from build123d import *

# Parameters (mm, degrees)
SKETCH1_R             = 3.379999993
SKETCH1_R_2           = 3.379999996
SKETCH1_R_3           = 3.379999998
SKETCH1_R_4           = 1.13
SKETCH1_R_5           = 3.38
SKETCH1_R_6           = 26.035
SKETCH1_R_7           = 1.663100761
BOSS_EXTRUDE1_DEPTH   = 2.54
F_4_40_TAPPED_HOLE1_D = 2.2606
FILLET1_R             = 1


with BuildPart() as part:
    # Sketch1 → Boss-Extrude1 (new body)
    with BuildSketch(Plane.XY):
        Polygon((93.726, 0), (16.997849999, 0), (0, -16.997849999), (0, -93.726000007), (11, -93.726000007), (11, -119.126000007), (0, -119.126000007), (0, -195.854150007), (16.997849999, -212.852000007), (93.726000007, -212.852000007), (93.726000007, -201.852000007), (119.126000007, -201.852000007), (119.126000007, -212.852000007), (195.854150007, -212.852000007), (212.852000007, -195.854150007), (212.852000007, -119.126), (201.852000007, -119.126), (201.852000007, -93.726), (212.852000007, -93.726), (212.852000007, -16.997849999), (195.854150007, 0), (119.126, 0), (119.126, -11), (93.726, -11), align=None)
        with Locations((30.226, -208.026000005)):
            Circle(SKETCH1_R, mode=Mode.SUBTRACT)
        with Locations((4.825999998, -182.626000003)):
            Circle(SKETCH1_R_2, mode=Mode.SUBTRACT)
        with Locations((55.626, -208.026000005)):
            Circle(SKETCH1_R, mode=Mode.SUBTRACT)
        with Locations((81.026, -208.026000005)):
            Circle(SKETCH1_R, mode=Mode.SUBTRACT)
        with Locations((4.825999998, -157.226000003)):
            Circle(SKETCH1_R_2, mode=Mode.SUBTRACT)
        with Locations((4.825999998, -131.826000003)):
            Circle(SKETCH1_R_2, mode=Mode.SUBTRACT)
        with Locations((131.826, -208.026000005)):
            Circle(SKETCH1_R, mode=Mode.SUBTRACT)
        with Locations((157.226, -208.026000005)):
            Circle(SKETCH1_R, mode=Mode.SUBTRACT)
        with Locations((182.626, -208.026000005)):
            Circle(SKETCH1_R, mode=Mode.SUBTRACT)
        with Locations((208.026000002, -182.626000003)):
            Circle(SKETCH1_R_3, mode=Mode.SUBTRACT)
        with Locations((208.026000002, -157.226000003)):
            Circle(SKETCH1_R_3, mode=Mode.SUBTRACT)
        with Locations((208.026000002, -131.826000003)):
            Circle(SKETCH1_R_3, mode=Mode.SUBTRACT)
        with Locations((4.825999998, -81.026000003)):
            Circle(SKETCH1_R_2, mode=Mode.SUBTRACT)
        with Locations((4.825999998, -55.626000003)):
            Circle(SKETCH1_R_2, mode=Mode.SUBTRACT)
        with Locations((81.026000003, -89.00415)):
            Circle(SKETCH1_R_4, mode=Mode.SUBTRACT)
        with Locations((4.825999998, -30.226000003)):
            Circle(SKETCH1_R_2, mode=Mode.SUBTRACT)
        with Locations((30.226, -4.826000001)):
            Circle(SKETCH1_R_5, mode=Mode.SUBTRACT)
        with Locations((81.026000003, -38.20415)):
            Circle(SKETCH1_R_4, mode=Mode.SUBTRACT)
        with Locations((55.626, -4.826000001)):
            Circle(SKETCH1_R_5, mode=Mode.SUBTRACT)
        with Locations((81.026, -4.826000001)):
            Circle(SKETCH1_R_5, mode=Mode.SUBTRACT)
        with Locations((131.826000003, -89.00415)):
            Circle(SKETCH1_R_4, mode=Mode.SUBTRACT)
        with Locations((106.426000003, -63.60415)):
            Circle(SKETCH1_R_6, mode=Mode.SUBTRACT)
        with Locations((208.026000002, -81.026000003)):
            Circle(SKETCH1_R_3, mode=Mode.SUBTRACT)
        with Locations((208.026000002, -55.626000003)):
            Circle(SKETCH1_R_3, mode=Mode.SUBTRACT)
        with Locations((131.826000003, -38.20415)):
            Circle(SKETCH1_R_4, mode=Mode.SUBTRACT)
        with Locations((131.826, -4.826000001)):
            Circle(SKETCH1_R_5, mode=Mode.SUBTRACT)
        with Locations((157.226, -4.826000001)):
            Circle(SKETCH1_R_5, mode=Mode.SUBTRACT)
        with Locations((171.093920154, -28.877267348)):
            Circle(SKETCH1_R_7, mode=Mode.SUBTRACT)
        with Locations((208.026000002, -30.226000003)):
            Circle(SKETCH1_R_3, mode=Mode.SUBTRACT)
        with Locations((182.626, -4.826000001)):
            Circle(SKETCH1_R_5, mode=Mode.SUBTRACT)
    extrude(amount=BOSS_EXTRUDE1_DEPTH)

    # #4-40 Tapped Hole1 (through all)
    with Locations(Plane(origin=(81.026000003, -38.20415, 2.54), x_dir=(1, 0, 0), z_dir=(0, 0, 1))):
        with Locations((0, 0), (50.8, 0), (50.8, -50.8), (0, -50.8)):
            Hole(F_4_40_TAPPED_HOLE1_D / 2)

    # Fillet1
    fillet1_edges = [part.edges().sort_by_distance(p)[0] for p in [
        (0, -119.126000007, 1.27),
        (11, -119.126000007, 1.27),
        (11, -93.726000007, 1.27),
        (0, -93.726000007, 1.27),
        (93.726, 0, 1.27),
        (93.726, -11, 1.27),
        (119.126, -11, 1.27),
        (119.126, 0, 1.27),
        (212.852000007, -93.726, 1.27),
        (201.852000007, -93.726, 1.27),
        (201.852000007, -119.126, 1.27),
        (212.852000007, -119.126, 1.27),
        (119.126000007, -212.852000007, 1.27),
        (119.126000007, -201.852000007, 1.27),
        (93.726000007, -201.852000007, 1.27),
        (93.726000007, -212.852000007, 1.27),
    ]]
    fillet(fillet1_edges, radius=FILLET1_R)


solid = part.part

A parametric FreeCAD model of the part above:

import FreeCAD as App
import Part
import Sketcher

V = App.Vector
Q = App.Units.Quantity


def edges_at(feature, points):
    """Names of the edges that pass closest to the given points."""
    edges = feature.Shape.Edges
    near = lambda p: min(range(len(edges)), key=lambda i: edges[i].distToShape(Part.Vertex(*p))[0])
    return sorted({f"Edge{near(p) + 1}" for p in points})

doc = App.newDocument("Part")
params = doc.addObject("Spreadsheet::Sheet", "Params")
for row, (alias, value) in enumerate([
    ("sketch1_diameter", "2.05 in"),
    ("sketch1_width", "1 in"),
    ("pad1_length", "0.1 in"),
    ("sketch2_diameter", "0.089 in"),
    ("hole_diameter", "0.089 in"),
    ("fillet_radius", "1 mm"),
], start=1):
    params.set(f"A{row}", alias)
    params.set(f"B{row}", "=" + value)
    params.setAlias(f"B{row}", alias)

body = doc.addObject("PartDesign::Body", "Body")

# Sketch on XY plane
sketch1 = doc.addObject("Sketcher::SketchObject", "Sketch")
body.addObject(sketch1)
sketch1.AttachmentSupport = (doc.XY_Plane, [""])
sketch1.MapMode = "FlatFace"
sketch1.addGeometry([
    Part.LineSegment(V(93.726, 0, 0), V(16.99785, 0, 0)),  # 0
    Part.LineSegment(V(16.99785, 0, 0), V(0, -16.99785, 0)),  # 1
    Part.LineSegment(V(0, -16.99785, 0), V(0, -93.726, 0)),  # 2
    Part.LineSegment(V(0, -93.726, 0), V(11, -93.726, 0)),  # 3
    Part.LineSegment(V(11, -93.726, 0), V(11, -119.126, 0)),  # 4
    Part.LineSegment(V(11, -119.126, 0), V(0, -119.126, 0)),  # 5
    Part.LineSegment(V(0, -119.126, 0), V(0, -195.85415, 0)),  # 6
    Part.LineSegment(V(0, -195.85415, 0), V(16.99785, -212.852, 0)),  # 7
    Part.LineSegment(V(16.99785, -212.852, 0), V(93.726, -212.852, 0)),  # 8
    Part.LineSegment(V(93.726, -212.852, 0), V(93.726, -201.852, 0)),  # 9
    Part.LineSegment(V(93.726, -201.852, 0), V(119.126, -201.852, 0)),  # 10
    Part.LineSegment(V(119.126, -201.852, 0), V(119.126, -212.852, 0)),  # 11
    Part.LineSegment(V(119.126, -212.852, 0), V(195.85415, -212.852, 0)),  # 12
    Part.LineSegment(V(195.85415, -212.852, 0), V(212.852, -195.85415, 0)),  # 13
    Part.LineSegment(V(212.852, -195.85415, 0), V(212.852, -119.126, 0)),  # 14
    Part.LineSegment(V(212.852, -119.126, 0), V(201.852, -119.126, 0)),  # 15
    Part.LineSegment(V(201.852, -119.126, 0), V(201.852, -93.726, 0)),  # 16
    Part.LineSegment(V(201.852, -93.726, 0), V(212.852, -93.726, 0)),  # 17
    Part.LineSegment(V(212.852, -93.726, 0), V(212.852, -16.99785, 0)),  # 18
    Part.LineSegment(V(212.852, -16.99785, 0), V(195.85415, 0, 0)),  # 19
    Part.LineSegment(V(195.85415, 0, 0), V(119.126, 0, 0)),  # 20
    Part.LineSegment(V(119.126, 0, 0), V(119.126, -11, 0)),  # 21
    Part.LineSegment(V(119.126, -11, 0), V(93.726, -11, 0)),  # 22
    Part.LineSegment(V(93.726, -11, 0), V(93.726, 0, 0)),  # 23
    Part.Circle(V(30.226, -208.026, 0), V(0, 0, 1), 3.38),  # 24
    Part.Circle(V(4.826, -182.626, 0), V(0, 0, 1), 3.38),  # 25
    Part.Circle(V(55.626, -208.026, 0), V(0, 0, 1), 3.38),  # 26
    Part.Circle(V(81.026, -208.026, 0), V(0, 0, 1), 3.38),  # 27
    Part.Circle(V(4.826, -157.226, 0), V(0, 0, 1), 3.38),  # 28
    Part.Circle(V(4.826, -131.826, 0), V(0, 0, 1), 3.38),  # 29
    Part.Circle(V(131.826, -208.026, 0), V(0, 0, 1), 3.38),  # 30
    Part.Circle(V(157.226, -208.026, 0), V(0, 0, 1), 3.38),  # 31
    Part.Circle(V(182.626, -208.026, 0), V(0, 0, 1), 3.38),  # 32
    Part.Circle(V(208.026, -182.626, 0), V(0, 0, 1), 3.38),  # 33
    Part.Circle(V(208.026, -157.226, 0), V(0, 0, 1), 3.38),  # 34
    Part.Circle(V(208.026, -131.826, 0), V(0, 0, 1), 3.38),  # 35
    Part.Circle(V(4.826, -81.026, 0), V(0, 0, 1), 3.38),  # 36
    Part.Circle(V(4.826, -55.626, 0), V(0, 0, 1), 3.38),  # 37
    Part.Circle(V(81.026, -89.00415, 0), V(0, 0, 1), 1.13),  # 38
    Part.Circle(V(4.826, -30.226, 0), V(0, 0, 1), 3.38),  # 39
    Part.Circle(V(30.226, -4.826, 0), V(0, 0, 1), 3.38),  # 40
    Part.Circle(V(81.026, -38.20415, 0), V(0, 0, 1), 1.13),  # 41
    Part.Circle(V(55.626, -4.826, 0), V(0, 0, 1), 3.38),  # 42
    Part.Circle(V(81.026, -4.826, 0), V(0, 0, 1), 3.38),  # 43
    Part.Circle(V(131.826, -89.00415, 0), V(0, 0, 1), 1.13),  # 44
    Part.Circle(V(106.426, -63.60415, 0), V(0, 0, 1), 26.035),  # 45
    Part.Circle(V(208.026, -81.026, 0), V(0, 0, 1), 3.38),  # 46
    Part.Circle(V(208.026, -55.626, 0), V(0, 0, 1), 3.38),  # 47
    Part.Circle(V(131.826, -38.20415, 0), V(0, 0, 1), 1.13),  # 48
    Part.Circle(V(131.826, -4.826, 0), V(0, 0, 1), 3.38),  # 49
    Part.Circle(V(157.226, -4.826, 0), V(0, 0, 1), 3.38),  # 50
    Part.Circle(V(171.09392, -28.877267, 0), V(0, 0, 1), 1.663101),  # 51
    Part.Circle(V(208.026, -30.226, 0), V(0, 0, 1), 3.38),  # 52
    Part.Circle(V(182.626, -4.826, 0), V(0, 0, 1), 3.38),  # 53
], False)
sketch1.addConstraint([
    Sketcher.Constraint("Coincident", 0, 2, 1, 1),
    Sketcher.Constraint("Coincident", 1, 2, 2, 1),
    Sketcher.Constraint("Coincident", 2, 2, 3, 1),
    Sketcher.Constraint("Coincident", 3, 2, 4, 1),
    Sketcher.Constraint("Coincident", 4, 2, 5, 1),
    Sketcher.Constraint("Coincident", 5, 2, 6, 1),
    Sketcher.Constraint("Coincident", 6, 2, 7, 1),
    Sketcher.Constraint("Coincident", 7, 2, 8, 1),
    Sketcher.Constraint("Coincident", 8, 2, 9, 1),
    Sketcher.Constraint("Coincident", 9, 2, 10, 1),
    Sketcher.Constraint("Coincident", 10, 2, 11, 1),
    Sketcher.Constraint("Coincident", 11, 2, 12, 1),
    Sketcher.Constraint("Coincident", 12, 2, 13, 1),
    Sketcher.Constraint("Coincident", 13, 2, 14, 1),
    Sketcher.Constraint("Coincident", 14, 2, 15, 1),
    Sketcher.Constraint("Coincident", 15, 2, 16, 1),
    Sketcher.Constraint("Coincident", 16, 2, 17, 1),
    Sketcher.Constraint("Coincident", 17, 2, 18, 1),
    Sketcher.Constraint("Coincident", 18, 2, 19, 1),
    Sketcher.Constraint("Coincident", 19, 2, 20, 1),
    Sketcher.Constraint("Coincident", 20, 2, 21, 1),
    Sketcher.Constraint("Coincident", 21, 2, 22, 1),
    Sketcher.Constraint("Coincident", 22, 2, 23, 1),
    Sketcher.Constraint("Coincident", 23, 2, 0, 1),
    Sketcher.Constraint("Horizontal", 0),
    Sketcher.Constraint("Vertical", 2),
    Sketcher.Constraint("Horizontal", 3),
    Sketcher.Constraint("Vertical", 4),
    Sketcher.Constraint("Horizontal", 5),
    Sketcher.Constraint("Vertical", 6),
    Sketcher.Constraint("Horizontal", 8),
    Sketcher.Constraint("Vertical", 9),
    Sketcher.Constraint("Horizontal", 10),
    Sketcher.Constraint("Vertical", 11),
    Sketcher.Constraint("Horizontal", 12),
    Sketcher.Constraint("Vertical", 14),
    Sketcher.Constraint("Horizontal", 15),
    Sketcher.Constraint("Vertical", 16),
    Sketcher.Constraint("Horizontal", 17),
    Sketcher.Constraint("Vertical", 18),
    Sketcher.Constraint("Horizontal", 20),
    Sketcher.Constraint("Vertical", 21),
    Sketcher.Constraint("Horizontal", 22),
    Sketcher.Constraint("Vertical", 23),
    Sketcher.Constraint("Equal", 24, 25),
    Sketcher.Constraint("Equal", 25, 26),
    Sketcher.Constraint("Equal", 26, 27),
    Sketcher.Constraint("Equal", 27, 28),
    Sketcher.Constraint("Equal", 28, 29),
    Sketcher.Constraint("Equal", 29, 30),
    Sketcher.Constraint("Equal", 30, 31),
    Sketcher.Constraint("Equal", 31, 32),
    Sketcher.Constraint("Equal", 32, 33),
    Sketcher.Constraint("Equal", 33, 34),
    Sketcher.Constraint("Equal", 34, 35),
    Sketcher.Constraint("Equal", 35, 36),
    Sketcher.Constraint("Equal", 36, 37),
    Sketcher.Constraint("Equal", 37, 39),
    Sketcher.Constraint("Equal", 39, 40),
    Sketcher.Constraint("Equal", 38, 41),
    Sketcher.Constraint("Equal", 40, 42),
    Sketcher.Constraint("Equal", 42, 43),
    Sketcher.Constraint("Equal", 41, 44),
    Sketcher.Constraint("Equal", 43, 46),
    Sketcher.Constraint("Equal", 46, 47),
    Sketcher.Constraint("Equal", 44, 48),
    Sketcher.Constraint("Equal", 47, 49),
    Sketcher.Constraint("Equal", 49, 50),
    Sketcher.Constraint("Equal", 50, 52),
    Sketcher.Constraint("Equal", 52, 53),
    Sketcher.Constraint("PointOnObject", 0, 2, -1),
    Sketcher.Constraint("PointOnObject", 1, 2, -2),
    Sketcher.Constraint("PointOnObject", 5, 2, -2),
    Sketcher.Constraint("PointOnObject", 19, 2, -1),
    Sketcher.Constraint("Perpendicular", 1, 7),
    Sketcher.Constraint("Perpendicular", 7, 13),
    Sketcher.Constraint("Perpendicular", 13, 19),
    Sketcher.Constraint("Horizontal", 24, 3, 26, 3),
    Sketcher.Constraint("Horizontal", 26, 3, 27, 3),
    Sketcher.Constraint("Horizontal", 27, 3, 30, 3),
    Sketcher.Constraint("Horizontal", 30, 3, 31, 3),
    Sketcher.Constraint("Horizontal", 31, 3, 32, 3),
    Sketcher.Constraint("Horizontal", 25, 3, 33, 3),
    Sketcher.Constraint("Horizontal", 28, 3, 34, 3),
    Sketcher.Constraint("Horizontal", 29, 3, 35, 3),
    Sketcher.Constraint("Horizontal", 40, 3, 42, 3),
    Sketcher.Constraint("Horizontal", 42, 3, 43, 3),
    Sketcher.Constraint("Horizontal", 38, 3, 44, 3),
    Sketcher.Constraint("Horizontal", 36, 3, 46, 3),
    Sketcher.Constraint("Horizontal", 37, 3, 47, 3),
    Sketcher.Constraint("Horizontal", 41, 3, 48, 3),
    Sketcher.Constraint("Horizontal", 43, 3, 49, 3),
    Sketcher.Constraint("Horizontal", 49, 3, 50, 3),
    Sketcher.Constraint("Horizontal", 39, 3, 52, 3),
    Sketcher.Constraint("Horizontal", 50, 3, 53, 3),
    Sketcher.Constraint("Horizontal", 8, 2, 11, 2),
    Sketcher.Constraint("Horizontal", 6, 2, 13, 2),
    Sketcher.Constraint("Horizontal", 5, 2, 14, 2),
    Sketcher.Constraint("Horizontal", 3, 2, 16, 2),
    Sketcher.Constraint("Horizontal", 1, 2, 18, 2),
    Sketcher.Constraint("Vertical", 25, 3, 28, 3),
    Sketcher.Constraint("Vertical", 28, 3, 29, 3),
    Sketcher.Constraint("Vertical", 33, 3, 34, 3),
    Sketcher.Constraint("Vertical", 34, 3, 35, 3),
    Sketcher.Constraint("Vertical", 29, 3, 36, 3),
    Sketcher.Constraint("Vertical", 36, 3, 37, 3),
    Sketcher.Constraint("Vertical", 27, 3, 38, 3),
    Sketcher.Constraint("Vertical", 37, 3, 39, 3),
    Sketcher.Constraint("Vertical", 24, 3, 40, 3),
    Sketcher.Constraint("Vertical", 38, 3, 41, 3),
    Sketcher.Constraint("Vertical", 26, 3, 42, 3),
    Sketcher.Constraint("Vertical", 41, 3, 43, 3),
    Sketcher.Constraint("Vertical", 30, 3, 44, 3),
    Sketcher.Constraint("Vertical", 35, 3, 46, 3),
    Sketcher.Constraint("Vertical", 46, 3, 47, 3),
    Sketcher.Constraint("Vertical", 44, 3, 48, 3),
    Sketcher.Constraint("Vertical", 48, 3, 49, 3),
    Sketcher.Constraint("Vertical", 31, 3, 50, 3),
    Sketcher.Constraint("Vertical", 47, 3, 52, 3),
    Sketcher.Constraint("Vertical", 32, 3, 53, 3),
    Sketcher.Constraint("Vertical", 0, 2, 7, 2),
    Sketcher.Constraint("Vertical", 14, 2, 17, 2),
    Sketcher.Constraint("Vertical", 12, 2, 19, 2),
    Sketcher.Constraint("Vertical", 11, 2, 20, 2),
    Sketcher.Constraint("Vertical", 9, 2, 22, 2),
    Sketcher.Constraint("Equal", 8, 12),
    Sketcher.Constraint("Equal", 5, 15),
    Sketcher.Constraint("Equal", 20, 2),
    Sketcher.Constraint("Equal", 22, 4),
    Sketcher.Constraint("Equal", 2, 6),
    Sketcher.Constraint("Equal", 17, 9),
    Sketcher.Constraint("Equal", 11, 21),
    Sketcher.Constraint("Diameter", 45, Q("2.05 in")),
    Sketcher.Constraint("DistanceX", 10, 1, 10, 2, Q("1 in")),
    Sketcher.Constraint("DistanceX", 25, 3, 24, 3, Q("1 in")),
    Sketcher.Constraint("DistanceY", 24, 3, 25, 3, Q("1 in")),
    Sketcher.Constraint("DistanceX", 24, 3, 26, 3, Q("1 in")),
    Sketcher.Constraint("DistanceX", 26, 3, 27, 3, Q("1 in")),
    Sketcher.Constraint("DistanceY", 25, 3, 28, 3, Q("1 in")),
    Sketcher.Constraint("DistanceY", 28, 3, 29, 3, Q("1 in")),
    Sketcher.Constraint("DistanceX", 27, 3, 30, 3, Q("2 in")),
    Sketcher.Constraint("DistanceX", 30, 3, 31, 3, Q("1 in")),
    Sketcher.Constraint("DistanceX", 31, 3, 32, 3, Q("1 in")),
    Sketcher.Constraint("DistanceX", 32, 3, 33, 3, Q("1 in")),
    Sketcher.Constraint("DistanceY", 29, 3, 36, 3, Q("2 in")),
    Sketcher.Constraint("DistanceY", 36, 3, 37, 3, Q("1 in")),
    Sketcher.Constraint("DistanceY", 37, 3, 39, 3, Q("1 in")),
    Sketcher.Constraint("DistanceY", 39, 3, 40, 3, Q("1 in")),
    Sketcher.Constraint("DistanceY", 38, 3, 41, 3, Q("2 in")),
    Sketcher.Constraint("DistanceX", 45, 3, 44, 3, Q("1 in")),
    Sketcher.Constraint("DistanceY", 44, 3, 45, 3, Q("1 in")),
    Sketcher.Constraint("DistanceY", 2, 2, 36, 3, Q("0.5 in")),
    Sketcher.Constraint("DistanceX", 27, 3, 8, 2, Q("0.5 in")),
    Sketcher.Constraint("Diameter", 24, Q("6.76 mm")),
    Sketcher.Constraint("Diameter", 38, Q("2.26 mm")),
    Sketcher.Constraint("Diameter", 51, Q("3.326202 mm")),
    Sketcher.Constraint("DistanceX", -1, 1, 24, 3, Q("1.19 in")),
    Sketcher.Constraint("DistanceX", 3, 1, 3, 2, Q("11 mm")),
    Sketcher.Constraint("DistanceY", 48, 3, 51, 3, Q("0.3672001 in")),
    Sketcher.Constraint("DistanceX", 0, 2, 0, 1, Q("76.72815 mm")),
    Sketcher.Constraint("DistanceY", 38, 3, -1, 1, Q("89.00415 mm")),
    Sketcher.Constraint("DistanceX", -1, 1, 51, 3, Q("171.09392 mm")),
])
sketch1.setExpression("Constraints[132]", "Params.sketch1_diameter")
sketch1.setExpression("Constraints[133]", "Params.sketch1_width")
pad1 = doc.addObject("PartDesign::Pad", "Pad")
body.addObject(pad1)
pad1.Profile = sketch1
pad1.setExpression("Length", "Params.pad1_length")

# Sketch on XY plane
sketch2 = doc.addObject("Sketcher::SketchObject", "Sketch001")
body.addObject(sketch2)
sketch2.AttachmentSupport = (doc.XY_Plane, [""])
sketch2.MapMode = "FlatFace"
sketch2.AttachmentOffset = App.Placement(V(0, 0, 0.1 * 25.4), App.Rotation())
sketch2.addGeometry([
    Part.Circle(V(81.026, -38.20415, 0), V(0, 0, 1), 1.1303),
    Part.Circle(V(131.826, -38.20415, 0), V(0, 0, 1), 1.1303),
    Part.Circle(V(131.826, -89.00415, 0), V(0, 0, 1), 1.1303),
    Part.Circle(V(81.026, -89.00415, 0), V(0, 0, 1), 1.1303),
], False)
sketch2.addConstraint([
    Sketcher.Constraint("Equal", 0, 1),
    Sketcher.Constraint("Equal", 1, 2),
    Sketcher.Constraint("Equal", 2, 3),
    Sketcher.Constraint("Horizontal", 0, 3, 1, 3),
    Sketcher.Constraint("Horizontal", 2, 3, 3, 3),
    Sketcher.Constraint("Vertical", 1, 3, 2, 3),
    Sketcher.Constraint("Vertical", 0, 3, 3, 3),
    Sketcher.Constraint("Diameter", 0, Q("0.089 in")),
    Sketcher.Constraint("DistanceX", 0, 3, 1, 3, Q("2 in")),
    Sketcher.Constraint("DistanceY", 2, 3, 1, 3, Q("2 in")),
    Sketcher.Constraint("DistanceX", -1, 1, 0, 3, Q("3.19 in")),
    Sketcher.Constraint("DistanceY", 0, 3, -1, 1, Q("38.20415 mm")),
])
sketch2.setExpression("Constraints[7]", "Params.sketch2_diameter")
doc.recompute()
hole = doc.addObject("PartDesign::Hole", "Hole")
body.addObject(hole)
hole.Profile = sketch2
hole.ThreadType = "None"
hole.setExpression("Diameter", "Params.hole_diameter")
hole.DepthType = "ThroughAll"
doc.recompute()

fillet = doc.addObject("PartDesign::Fillet", "Fillet")
body.addObject(fillet)
fillet.Base = (hole, edges_at(hole, [
    (0, -119.126, 1.27),
    (11, -119.126, 1.27),
    (11, -93.726, 1.27),
    (0, -93.726, 1.27),
    (93.726, 0, 1.27),
    (93.726, -11, 1.27),
    (119.126, -11, 1.27),
    (119.126, 0, 1.27),
    (212.852, -93.726, 1.27),
    (201.852, -93.726, 1.27),
    (201.852, -119.126, 1.27),
    (212.852, -119.126, 1.27),
    (119.126, -212.852, 1.27),
    (119.126, -201.852, 1.27),
    (93.726, -201.852, 1.27),
    (93.726, -212.852, 1.27),
]))
fillet.setExpression("Radius", "Params.fillet_radius")

doc.recompute()
